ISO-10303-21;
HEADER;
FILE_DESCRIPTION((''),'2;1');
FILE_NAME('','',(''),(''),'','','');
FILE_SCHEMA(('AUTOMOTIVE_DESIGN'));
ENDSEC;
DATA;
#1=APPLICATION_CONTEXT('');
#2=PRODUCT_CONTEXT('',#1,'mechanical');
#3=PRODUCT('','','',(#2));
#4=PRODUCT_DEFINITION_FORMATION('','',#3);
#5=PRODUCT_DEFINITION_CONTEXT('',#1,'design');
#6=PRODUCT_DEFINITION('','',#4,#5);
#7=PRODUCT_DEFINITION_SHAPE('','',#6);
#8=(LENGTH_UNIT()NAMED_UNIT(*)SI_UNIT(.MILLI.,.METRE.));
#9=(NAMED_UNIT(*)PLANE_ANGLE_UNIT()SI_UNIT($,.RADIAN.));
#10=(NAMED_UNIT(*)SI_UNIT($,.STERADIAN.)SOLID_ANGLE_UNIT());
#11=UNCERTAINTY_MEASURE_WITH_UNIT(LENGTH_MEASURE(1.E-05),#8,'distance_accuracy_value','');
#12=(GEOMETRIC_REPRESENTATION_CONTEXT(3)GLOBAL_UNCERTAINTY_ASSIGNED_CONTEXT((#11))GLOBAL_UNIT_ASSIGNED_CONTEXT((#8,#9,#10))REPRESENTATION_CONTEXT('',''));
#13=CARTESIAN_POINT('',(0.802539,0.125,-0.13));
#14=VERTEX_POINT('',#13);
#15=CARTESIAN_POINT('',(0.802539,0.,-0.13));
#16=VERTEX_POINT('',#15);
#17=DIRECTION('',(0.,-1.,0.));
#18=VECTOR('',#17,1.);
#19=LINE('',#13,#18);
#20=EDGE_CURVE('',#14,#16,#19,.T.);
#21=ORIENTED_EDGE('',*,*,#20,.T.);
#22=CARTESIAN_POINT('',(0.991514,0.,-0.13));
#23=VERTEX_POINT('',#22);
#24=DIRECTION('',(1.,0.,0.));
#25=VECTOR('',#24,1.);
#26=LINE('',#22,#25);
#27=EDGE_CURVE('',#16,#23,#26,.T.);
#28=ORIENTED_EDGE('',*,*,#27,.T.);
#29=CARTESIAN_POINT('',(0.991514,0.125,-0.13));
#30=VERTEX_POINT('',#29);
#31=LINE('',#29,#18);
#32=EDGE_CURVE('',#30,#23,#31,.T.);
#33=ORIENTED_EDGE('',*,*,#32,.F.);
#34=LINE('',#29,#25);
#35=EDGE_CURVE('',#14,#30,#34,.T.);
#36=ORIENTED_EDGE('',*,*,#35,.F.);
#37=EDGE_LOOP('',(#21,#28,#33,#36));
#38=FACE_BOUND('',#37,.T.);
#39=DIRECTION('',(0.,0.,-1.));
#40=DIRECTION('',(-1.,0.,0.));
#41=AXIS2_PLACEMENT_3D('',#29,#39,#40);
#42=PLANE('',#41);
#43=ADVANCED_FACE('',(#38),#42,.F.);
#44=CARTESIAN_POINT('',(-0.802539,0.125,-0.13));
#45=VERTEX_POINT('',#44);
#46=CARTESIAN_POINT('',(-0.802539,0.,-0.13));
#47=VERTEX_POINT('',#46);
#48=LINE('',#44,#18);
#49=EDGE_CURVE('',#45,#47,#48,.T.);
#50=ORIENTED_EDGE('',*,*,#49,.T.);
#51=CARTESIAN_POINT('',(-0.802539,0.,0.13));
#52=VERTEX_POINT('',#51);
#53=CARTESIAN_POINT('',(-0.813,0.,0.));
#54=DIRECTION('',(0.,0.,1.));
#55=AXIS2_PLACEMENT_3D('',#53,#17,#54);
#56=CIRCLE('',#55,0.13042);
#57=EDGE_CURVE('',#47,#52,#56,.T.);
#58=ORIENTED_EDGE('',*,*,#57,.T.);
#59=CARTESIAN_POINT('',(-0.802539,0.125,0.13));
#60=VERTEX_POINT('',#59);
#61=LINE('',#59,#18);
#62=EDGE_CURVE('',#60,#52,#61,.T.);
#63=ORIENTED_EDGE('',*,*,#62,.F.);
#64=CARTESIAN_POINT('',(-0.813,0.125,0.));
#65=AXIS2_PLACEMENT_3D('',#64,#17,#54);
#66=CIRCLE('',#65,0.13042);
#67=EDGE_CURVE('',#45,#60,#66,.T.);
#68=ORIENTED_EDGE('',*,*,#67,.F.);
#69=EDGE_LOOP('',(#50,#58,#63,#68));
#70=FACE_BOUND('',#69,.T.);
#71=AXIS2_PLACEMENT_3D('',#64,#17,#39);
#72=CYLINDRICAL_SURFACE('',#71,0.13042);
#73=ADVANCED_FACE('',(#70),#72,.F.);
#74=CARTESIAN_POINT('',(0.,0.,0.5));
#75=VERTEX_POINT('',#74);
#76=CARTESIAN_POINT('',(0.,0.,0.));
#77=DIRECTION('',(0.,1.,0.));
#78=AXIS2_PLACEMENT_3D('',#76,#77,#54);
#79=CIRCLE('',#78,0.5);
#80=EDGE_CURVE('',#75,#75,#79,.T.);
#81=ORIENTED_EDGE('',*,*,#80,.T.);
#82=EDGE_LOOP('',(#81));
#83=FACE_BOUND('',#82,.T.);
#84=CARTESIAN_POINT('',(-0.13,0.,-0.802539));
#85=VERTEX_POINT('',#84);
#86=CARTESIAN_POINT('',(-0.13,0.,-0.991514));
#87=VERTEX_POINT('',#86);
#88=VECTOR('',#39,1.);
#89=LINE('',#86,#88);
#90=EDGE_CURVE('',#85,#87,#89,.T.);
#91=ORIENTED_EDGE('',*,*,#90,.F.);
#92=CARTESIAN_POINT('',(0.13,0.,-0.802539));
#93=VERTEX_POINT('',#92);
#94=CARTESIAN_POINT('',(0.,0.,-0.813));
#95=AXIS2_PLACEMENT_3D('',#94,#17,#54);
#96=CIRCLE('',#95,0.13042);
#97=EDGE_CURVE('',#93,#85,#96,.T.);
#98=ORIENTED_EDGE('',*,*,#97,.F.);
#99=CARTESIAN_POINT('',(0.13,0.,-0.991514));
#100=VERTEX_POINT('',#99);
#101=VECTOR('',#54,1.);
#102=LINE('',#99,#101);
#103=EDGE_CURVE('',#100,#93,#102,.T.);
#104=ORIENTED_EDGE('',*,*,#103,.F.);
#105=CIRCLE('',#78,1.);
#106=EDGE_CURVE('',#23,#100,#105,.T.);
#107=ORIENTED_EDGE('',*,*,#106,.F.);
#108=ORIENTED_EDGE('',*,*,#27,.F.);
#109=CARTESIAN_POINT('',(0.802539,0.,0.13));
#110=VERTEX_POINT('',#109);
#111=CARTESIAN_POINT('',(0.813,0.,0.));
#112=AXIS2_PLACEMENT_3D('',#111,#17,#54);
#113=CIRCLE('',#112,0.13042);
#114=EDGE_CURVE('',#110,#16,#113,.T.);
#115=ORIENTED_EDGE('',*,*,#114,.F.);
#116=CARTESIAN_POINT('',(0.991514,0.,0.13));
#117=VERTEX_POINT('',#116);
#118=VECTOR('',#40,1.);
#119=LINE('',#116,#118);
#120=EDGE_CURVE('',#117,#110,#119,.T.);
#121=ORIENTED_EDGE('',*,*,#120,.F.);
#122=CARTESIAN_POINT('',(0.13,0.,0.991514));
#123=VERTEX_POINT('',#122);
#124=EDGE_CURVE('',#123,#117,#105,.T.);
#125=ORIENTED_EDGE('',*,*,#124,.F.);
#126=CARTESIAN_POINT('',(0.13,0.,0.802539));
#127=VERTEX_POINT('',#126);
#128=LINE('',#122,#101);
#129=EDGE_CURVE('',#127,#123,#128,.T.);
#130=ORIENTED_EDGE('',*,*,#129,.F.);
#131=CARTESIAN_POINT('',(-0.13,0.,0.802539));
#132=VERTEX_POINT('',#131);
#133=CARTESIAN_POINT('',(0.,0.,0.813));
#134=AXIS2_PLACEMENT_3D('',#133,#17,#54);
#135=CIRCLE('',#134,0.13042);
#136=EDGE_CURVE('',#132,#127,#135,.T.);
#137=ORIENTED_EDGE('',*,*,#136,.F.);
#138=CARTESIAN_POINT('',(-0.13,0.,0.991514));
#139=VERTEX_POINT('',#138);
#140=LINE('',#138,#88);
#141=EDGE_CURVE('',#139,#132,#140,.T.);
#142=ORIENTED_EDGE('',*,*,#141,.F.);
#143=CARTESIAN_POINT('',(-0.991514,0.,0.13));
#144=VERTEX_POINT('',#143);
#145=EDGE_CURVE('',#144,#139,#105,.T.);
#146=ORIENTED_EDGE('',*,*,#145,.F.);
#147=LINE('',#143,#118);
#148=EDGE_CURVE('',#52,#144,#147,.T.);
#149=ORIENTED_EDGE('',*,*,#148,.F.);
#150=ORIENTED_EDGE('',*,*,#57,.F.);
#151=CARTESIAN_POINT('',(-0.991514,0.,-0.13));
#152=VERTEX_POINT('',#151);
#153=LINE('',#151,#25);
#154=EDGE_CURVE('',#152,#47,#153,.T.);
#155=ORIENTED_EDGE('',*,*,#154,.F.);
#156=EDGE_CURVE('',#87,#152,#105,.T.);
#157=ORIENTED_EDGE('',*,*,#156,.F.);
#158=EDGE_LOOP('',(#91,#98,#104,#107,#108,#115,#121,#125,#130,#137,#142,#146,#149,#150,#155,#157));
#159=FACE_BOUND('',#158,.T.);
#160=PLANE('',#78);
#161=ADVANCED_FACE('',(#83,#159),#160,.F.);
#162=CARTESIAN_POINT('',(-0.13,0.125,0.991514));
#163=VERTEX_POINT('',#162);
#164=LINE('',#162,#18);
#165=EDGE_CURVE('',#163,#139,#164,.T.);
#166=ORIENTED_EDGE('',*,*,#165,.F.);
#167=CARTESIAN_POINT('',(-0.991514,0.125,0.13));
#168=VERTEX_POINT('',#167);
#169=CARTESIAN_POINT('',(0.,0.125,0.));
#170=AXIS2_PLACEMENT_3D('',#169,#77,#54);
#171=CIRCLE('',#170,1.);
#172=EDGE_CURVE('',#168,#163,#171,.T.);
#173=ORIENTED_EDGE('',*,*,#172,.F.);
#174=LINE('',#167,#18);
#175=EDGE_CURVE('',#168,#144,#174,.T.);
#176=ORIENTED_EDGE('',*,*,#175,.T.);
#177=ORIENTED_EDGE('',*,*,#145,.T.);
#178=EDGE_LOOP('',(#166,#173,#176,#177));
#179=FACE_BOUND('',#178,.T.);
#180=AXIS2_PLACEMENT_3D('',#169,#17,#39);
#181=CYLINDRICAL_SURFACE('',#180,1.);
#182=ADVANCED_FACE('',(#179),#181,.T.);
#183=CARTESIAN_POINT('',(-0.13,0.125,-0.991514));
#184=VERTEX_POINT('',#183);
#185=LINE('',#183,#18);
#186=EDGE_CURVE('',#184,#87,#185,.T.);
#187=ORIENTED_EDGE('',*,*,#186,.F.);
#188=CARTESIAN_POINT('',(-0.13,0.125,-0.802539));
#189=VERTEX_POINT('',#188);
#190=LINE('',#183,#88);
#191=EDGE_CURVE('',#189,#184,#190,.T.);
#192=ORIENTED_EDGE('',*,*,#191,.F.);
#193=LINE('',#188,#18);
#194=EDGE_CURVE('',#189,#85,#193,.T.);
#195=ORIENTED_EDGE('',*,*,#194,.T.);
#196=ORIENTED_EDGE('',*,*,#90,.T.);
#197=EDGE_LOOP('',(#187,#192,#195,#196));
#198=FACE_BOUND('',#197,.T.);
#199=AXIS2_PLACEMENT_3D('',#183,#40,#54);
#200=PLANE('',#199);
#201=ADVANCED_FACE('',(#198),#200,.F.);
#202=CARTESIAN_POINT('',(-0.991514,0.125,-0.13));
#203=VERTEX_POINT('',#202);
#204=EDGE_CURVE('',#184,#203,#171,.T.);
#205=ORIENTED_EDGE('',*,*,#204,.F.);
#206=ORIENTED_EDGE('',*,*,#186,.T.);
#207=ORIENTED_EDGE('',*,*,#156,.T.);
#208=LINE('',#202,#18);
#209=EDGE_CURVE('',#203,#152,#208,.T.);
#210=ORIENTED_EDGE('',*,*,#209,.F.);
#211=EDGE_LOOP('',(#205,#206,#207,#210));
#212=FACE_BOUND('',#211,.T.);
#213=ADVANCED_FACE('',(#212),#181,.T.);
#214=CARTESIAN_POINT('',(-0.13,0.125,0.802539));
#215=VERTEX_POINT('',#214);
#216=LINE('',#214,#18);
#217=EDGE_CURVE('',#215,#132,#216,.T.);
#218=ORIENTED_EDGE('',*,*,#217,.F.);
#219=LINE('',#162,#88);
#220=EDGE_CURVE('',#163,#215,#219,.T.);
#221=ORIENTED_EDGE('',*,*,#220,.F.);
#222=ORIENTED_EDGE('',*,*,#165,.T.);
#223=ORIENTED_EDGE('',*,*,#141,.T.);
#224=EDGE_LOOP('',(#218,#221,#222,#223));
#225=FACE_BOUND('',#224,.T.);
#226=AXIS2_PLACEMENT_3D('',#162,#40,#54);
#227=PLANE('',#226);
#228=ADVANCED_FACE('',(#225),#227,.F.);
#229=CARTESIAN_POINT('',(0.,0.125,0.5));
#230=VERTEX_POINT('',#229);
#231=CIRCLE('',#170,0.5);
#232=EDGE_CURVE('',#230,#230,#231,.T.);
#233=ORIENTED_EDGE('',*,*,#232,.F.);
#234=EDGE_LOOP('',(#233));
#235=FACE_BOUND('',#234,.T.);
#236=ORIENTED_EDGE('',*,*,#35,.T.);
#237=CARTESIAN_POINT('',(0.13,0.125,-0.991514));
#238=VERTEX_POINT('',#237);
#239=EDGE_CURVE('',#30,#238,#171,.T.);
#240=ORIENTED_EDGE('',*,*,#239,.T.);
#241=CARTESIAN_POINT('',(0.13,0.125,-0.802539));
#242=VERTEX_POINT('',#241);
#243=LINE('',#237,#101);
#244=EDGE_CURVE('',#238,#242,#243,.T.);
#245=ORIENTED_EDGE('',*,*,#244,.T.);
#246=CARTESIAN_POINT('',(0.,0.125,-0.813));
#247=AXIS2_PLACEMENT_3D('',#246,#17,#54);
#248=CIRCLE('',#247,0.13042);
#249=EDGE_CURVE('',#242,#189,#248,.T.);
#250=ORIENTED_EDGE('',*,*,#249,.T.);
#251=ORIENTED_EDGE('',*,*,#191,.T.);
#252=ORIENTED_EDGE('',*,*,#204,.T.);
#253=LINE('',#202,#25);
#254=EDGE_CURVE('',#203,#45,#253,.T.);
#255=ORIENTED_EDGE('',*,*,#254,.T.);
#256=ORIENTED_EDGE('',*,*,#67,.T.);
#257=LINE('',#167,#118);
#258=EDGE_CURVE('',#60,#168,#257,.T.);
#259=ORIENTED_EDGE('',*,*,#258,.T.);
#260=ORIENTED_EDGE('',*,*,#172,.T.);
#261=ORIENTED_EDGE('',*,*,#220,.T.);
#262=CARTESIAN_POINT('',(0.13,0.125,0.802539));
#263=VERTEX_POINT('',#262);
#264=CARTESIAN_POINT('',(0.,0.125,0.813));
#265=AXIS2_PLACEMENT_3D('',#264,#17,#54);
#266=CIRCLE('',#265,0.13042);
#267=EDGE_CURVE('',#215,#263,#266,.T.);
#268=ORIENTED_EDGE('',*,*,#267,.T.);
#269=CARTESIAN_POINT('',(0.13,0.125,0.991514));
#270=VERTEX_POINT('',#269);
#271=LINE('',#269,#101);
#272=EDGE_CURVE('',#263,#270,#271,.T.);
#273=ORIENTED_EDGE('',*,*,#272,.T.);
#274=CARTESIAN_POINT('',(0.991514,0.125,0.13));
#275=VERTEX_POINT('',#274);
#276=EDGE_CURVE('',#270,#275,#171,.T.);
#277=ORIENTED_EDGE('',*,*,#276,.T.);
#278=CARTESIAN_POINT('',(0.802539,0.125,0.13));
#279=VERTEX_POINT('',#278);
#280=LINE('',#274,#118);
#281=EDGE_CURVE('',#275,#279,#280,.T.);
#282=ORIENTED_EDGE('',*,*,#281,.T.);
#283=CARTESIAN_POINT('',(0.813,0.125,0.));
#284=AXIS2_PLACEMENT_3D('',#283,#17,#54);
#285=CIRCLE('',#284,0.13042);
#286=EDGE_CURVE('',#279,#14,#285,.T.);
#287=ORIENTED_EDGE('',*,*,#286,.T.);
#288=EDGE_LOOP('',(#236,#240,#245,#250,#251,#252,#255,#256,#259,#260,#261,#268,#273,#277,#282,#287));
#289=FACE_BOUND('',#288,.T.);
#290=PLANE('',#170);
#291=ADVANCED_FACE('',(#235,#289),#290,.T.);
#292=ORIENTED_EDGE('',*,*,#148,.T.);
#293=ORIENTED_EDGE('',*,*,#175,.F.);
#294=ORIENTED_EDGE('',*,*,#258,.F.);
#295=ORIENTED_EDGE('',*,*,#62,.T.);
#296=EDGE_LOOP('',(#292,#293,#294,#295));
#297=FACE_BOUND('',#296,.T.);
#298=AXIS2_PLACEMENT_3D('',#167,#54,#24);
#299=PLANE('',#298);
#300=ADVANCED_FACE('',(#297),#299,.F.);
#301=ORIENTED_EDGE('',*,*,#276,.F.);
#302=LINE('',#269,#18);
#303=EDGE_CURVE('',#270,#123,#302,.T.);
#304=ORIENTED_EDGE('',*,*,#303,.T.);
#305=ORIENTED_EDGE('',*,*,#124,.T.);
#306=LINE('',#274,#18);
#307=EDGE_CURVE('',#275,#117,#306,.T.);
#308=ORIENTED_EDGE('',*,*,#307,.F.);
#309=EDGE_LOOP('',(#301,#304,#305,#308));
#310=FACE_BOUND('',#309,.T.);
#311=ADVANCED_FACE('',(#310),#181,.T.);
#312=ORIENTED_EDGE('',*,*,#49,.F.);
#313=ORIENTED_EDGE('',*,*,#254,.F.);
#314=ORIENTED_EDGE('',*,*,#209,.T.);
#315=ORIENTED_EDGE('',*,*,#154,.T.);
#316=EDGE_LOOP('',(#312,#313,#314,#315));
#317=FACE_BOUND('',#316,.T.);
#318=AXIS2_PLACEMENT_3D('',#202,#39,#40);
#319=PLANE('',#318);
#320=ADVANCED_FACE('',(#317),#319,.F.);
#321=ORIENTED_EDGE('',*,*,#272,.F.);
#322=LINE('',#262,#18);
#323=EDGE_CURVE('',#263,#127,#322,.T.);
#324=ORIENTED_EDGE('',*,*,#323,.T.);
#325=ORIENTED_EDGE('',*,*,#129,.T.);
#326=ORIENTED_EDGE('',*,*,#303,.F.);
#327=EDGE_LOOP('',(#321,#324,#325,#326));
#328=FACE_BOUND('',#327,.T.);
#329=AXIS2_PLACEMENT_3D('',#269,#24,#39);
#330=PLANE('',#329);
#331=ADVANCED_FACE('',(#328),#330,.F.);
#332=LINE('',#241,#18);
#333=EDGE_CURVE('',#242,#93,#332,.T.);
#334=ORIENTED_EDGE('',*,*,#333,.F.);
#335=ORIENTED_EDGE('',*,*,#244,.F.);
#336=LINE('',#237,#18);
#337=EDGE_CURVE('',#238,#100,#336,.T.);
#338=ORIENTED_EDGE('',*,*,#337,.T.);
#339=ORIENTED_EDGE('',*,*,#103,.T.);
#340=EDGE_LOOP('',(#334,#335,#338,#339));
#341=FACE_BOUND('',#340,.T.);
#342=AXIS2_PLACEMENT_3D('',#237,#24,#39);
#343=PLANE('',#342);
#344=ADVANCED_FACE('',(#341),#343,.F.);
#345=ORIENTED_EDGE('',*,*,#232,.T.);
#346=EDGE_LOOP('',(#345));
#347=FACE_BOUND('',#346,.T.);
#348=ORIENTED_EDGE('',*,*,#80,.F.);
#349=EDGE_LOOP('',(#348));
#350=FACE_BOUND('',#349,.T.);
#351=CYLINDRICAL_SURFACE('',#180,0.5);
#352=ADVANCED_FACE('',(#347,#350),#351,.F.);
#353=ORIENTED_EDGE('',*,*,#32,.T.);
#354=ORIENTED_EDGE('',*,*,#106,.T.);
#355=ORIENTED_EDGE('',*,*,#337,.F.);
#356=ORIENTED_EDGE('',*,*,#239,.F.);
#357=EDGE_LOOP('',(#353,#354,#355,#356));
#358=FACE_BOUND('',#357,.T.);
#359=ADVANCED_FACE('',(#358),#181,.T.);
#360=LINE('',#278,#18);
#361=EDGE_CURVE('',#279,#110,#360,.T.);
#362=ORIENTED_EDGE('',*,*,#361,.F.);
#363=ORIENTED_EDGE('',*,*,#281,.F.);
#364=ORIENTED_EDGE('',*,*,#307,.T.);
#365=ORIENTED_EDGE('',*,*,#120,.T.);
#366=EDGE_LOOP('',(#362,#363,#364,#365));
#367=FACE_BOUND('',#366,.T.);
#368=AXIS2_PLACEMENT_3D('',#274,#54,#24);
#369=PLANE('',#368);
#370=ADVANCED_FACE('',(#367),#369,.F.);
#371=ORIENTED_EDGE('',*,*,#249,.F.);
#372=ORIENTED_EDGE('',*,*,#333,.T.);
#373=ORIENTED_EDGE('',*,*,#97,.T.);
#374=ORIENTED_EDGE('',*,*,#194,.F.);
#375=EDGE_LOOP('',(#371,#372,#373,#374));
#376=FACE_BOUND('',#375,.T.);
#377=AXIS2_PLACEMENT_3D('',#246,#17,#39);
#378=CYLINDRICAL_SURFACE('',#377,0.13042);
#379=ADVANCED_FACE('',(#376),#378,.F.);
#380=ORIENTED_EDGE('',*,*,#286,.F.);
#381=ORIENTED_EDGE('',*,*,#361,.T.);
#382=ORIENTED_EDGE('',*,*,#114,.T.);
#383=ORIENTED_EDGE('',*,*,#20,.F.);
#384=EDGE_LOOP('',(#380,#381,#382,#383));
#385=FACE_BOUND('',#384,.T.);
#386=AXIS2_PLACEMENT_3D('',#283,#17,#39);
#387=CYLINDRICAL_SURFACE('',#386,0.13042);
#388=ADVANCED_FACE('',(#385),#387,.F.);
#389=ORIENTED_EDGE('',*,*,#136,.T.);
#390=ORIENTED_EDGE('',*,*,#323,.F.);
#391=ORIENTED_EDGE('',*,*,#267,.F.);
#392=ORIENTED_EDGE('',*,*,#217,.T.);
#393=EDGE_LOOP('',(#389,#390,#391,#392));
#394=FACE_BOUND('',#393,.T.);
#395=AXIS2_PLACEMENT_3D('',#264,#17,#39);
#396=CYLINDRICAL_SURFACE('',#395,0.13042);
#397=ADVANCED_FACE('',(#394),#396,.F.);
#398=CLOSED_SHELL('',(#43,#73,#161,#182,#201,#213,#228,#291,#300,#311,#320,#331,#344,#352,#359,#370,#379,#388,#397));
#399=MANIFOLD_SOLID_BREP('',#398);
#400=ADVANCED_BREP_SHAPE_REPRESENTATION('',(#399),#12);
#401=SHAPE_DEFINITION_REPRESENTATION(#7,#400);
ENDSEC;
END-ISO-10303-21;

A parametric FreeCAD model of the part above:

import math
import FreeCAD as App
import Part
import Sketcher

V = App.Vector

doc = App.newDocument("Part")
params = doc.addObject("Spreadsheet::Sheet", "Params")
for row, (alias, value) in enumerate([
    ("sketch1_diameter", "1 mm"),
    ("sketch1_radius", "1 mm"),
    ("pad1_length", "0.125 mm"),
], start=1):
    params.set(f"A{row}", alias)
    params.set(f"B{row}", "=" + value)
    params.setAlias(f"B{row}", alias)

body = doc.addObject("PartDesign::Body", "Body")

sketch1 = body.newObject("Sketcher::SketchObject", "Sketch")
sketch1.AttachmentSupport = (doc.getObject("XZ_Plane"), [""])
sketch1.MapMode = "FlatFace"
sketch1.addGeometry(Part.LineSegment(V(0.13, -0.99, 0), V(0.13, -0.8, 0)), False)
sketch1.addGeometry(Part.ArcOfCircle(Part.Circle(V(0, -0.81, 0), V(0, 0, 1), 0.13), math.radians(5), math.radians(175)), False)
sketch1.addGeometry(Part.LineSegment(V(-0.13, -0.8, 0), V(-0.13, -0.99, 0)), False)
sketch1.addGeometry(Part.ArcOfCircle(Part.Circle(V(0, 0, 0), V(0, 0, 1), 1), math.radians(-173), math.radians(-97)), False)
sketch1.addGeometry(Part.LineSegment(V(-0.99, -0.13, 0), V(-0.8, -0.13, 0)), False)
sketch1.addGeometry(Part.ArcOfCircle(Part.Circle(V(-0.81, 0, 0), V(0, 0, 1), 0.13), math.radians(-85), math.radians(85)), False)
sketch1.addGeometry(Part.LineSegment(V(-0.8, 0.13, 0), V(-0.99, 0.13, 0)), False)
sketch1.addGeometry(Part.ArcOfCircle(Part.Circle(V(0, 0, 0), V(0, 0, 1), 1), math.radians(97), math.radians(173)), False)
sketch1.addGeometry(Part.LineSegment(V(-0.13, 0.99, 0), V(-0.13, 0.8, 0)), False)
sketch1.addGeometry(Part.ArcOfCircle(Part.Circle(V(0, 0.81, 0), V(0, 0, 1), 0.13), math.radians(-175), math.radians(-5)), False)
sketch1.addGeometry(Part.LineSegment(V(0.13, 0.8, 0), V(0.13, 0.99, 0)), False)
sketch1.addGeometry(Part.ArcOfCircle(Part.Circle(V(0, 0, 0), V(0, 0, 1), 1), math.radians(7), math.radians(83)), False)
sketch1.addGeometry(Part.LineSegment(V(0.99, 0.13, 0), V(0.8, 0.13, 0)), False)
sketch1.addGeometry(Part.ArcOfCircle(Part.Circle(V(0.81, 0, 0), V(0, 0, 1), 0.13), math.radians(95), math.radians(265)), False)
sketch1.addGeometry(Part.LineSegment(V(0.8, -0.13, 0), V(0.99, -0.13, 0)), False)
sketch1.addGeometry(Part.ArcOfCircle(Part.Circle(V(0, 0, 0), V(0, 0, 1), 1), math.radians(-83), math.radians(-7)), False)
sketch1.addGeometry(Part.Circle(V(0, 0, 0), V(0, 0, 1), 0.5), False)
sketch1.addConstraint(Sketcher.Constraint("Coincident", 0, 2, 1, 1))
sketch1.addConstraint(Sketcher.Constraint("Coincident", 1, 2, 2, 1))
sketch1.addConstraint(Sketcher.Constraint("Coincident", 2, 2, 3, 2))
sketch1.addConstraint(Sketcher.Constraint("Coincident", 3, 1, 4, 1))
sketch1.addConstraint(Sketcher.Constraint("Coincident", 4, 2, 5, 1))
sketch1.addConstraint(Sketcher.Constraint("Coincident", 5, 2, 6, 1))
sketch1.addConstraint(Sketcher.Constraint("Coincident", 6, 2, 7, 2))
sketch1.addConstraint(Sketcher.Constraint("Coincident", 7, 1, 8, 1))
sketch1.addConstraint(Sketcher.Constraint("Coincident", 8, 2, 9, 1))
sketch1.addConstraint(Sketcher.Constraint("Coincident", 9, 2, 10, 1))
sketch1.addConstraint(Sketcher.Constraint("Coincident", 10, 2, 11, 2))
sketch1.addConstraint(Sketcher.Constraint("Coincident", 11, 1, 12, 1))
sketch1.addConstraint(Sketcher.Constraint("Coincident", 12, 2, 13, 1))
sketch1.addConstraint(Sketcher.Constraint("Coincident", 13, 2, 14, 1))
sketch1.addConstraint(Sketcher.Constraint("Coincident", 14, 2, 15, 2))
sketch1.addConstraint(Sketcher.Constraint("Coincident", 15, 1, 0, 1))
sketch1.addConstraint(Sketcher.Constraint("Vertical", 0))
sketch1.addConstraint(Sketcher.Constraint("Vertical", 2))
sketch1.addConstraint(Sketcher.Constraint("Horizontal", 4))
sketch1.addConstraint(Sketcher.Constraint("Horizontal", 6))
sketch1.addConstraint(Sketcher.Constraint("Vertical", 8))
sketch1.addConstraint(Sketcher.Constraint("Vertical", 10))
sketch1.addConstraint(Sketcher.Constraint("Horizontal", 12))
sketch1.addConstraint(Sketcher.Constraint("Horizontal", 14))
sketch1.addConstraint(Sketcher.Constraint("Coincident", 3, 3, -1, 1))
sketch1.addConstraint(Sketcher.Constraint("Coincident", 7, 3, -1, 1))
sketch1.addConstraint(Sketcher.Constraint("Coincident", 11, 3, -1, 1))
sketch1.addConstraint(Sketcher.Constraint("Coincident", 15, 3, -1, 1))
sketch1.addConstraint(Sketcher.Constraint("Coincident", 16, 3, -1, 1))
sketch1.addConstraint(Sketcher.Constraint("Equal", 1, 5))
sketch1.addConstraint(Sketcher.Constraint("Equal", 3, 7))
sketch1.addConstraint(Sketcher.Constraint("Equal", 5, 9))
sketch1.addConstraint(Sketcher.Constraint("Equal", 7, 11))
sketch1.addConstraint(Sketcher.Constraint("Equal", 9, 13))
sketch1.addConstraint(Sketcher.Constraint("Equal", 11, 15))
sketch1.addConstraint(Sketcher.Constraint("Symmetric", 1, 3, 9, 3, -1, 1))
sketch1.addConstraint(Sketcher.Constraint("Symmetric", 5, 3, 13, 3, -1, 1))
sketch1.addConstraint(Sketcher.Constraint("Symmetric", 0, 2, 1, 2, -2))
sketch1.addConstraint(Sketcher.Constraint("Symmetric", 5, 2, 12, 2, -2))
sketch1.addConstraint(Sketcher.Constraint("Horizontal", 8, 2, 9, 2))
sketch1.addConstraint(Sketcher.Constraint("Horizontal", 4, 2, 13, 2))
sketch1.addConstraint(Sketcher.Constraint("Vertical", 4, 2, 5, 2))
sketch1.addConstraint(Sketcher.Constraint("Vertical", 2, 2, 7, 1))
sketch1.addConstraint(Sketcher.Constraint("Equal", 14, 0))
sketch1.addConstraint(Sketcher.Constraint("Diameter", 16, 1.0))
sketch1.addConstraint(Sketcher.Constraint("Radius", 3, 1.0))
sketch1.addConstraint(Sketcher.Constraint("DistanceX", -1, 1, 0, 2, 0.13))
sketch1.addConstraint(Sketcher.Constraint("DistanceY", 3, 1, -1, 1, 0.13))
sketch1.addConstraint(Sketcher.Constraint("Radius", 1, 0.13042))
sketch1.addConstraint(Sketcher.Constraint("DistanceY", 1, 3, -1, 1, 0.813))
sketch1.setExpression("Constraints[44]", "Params.sketch1_diameter")
sketch1.setExpression("Constraints[45]", "Params.sketch1_radius")
pad1 = body.newObject("PartDesign::Pad", "Pad")
pad1.Profile = sketch1
pad1.setExpression("Length", "Params.pad1_length")
pad1.Reversed = True

doc.recompute()
